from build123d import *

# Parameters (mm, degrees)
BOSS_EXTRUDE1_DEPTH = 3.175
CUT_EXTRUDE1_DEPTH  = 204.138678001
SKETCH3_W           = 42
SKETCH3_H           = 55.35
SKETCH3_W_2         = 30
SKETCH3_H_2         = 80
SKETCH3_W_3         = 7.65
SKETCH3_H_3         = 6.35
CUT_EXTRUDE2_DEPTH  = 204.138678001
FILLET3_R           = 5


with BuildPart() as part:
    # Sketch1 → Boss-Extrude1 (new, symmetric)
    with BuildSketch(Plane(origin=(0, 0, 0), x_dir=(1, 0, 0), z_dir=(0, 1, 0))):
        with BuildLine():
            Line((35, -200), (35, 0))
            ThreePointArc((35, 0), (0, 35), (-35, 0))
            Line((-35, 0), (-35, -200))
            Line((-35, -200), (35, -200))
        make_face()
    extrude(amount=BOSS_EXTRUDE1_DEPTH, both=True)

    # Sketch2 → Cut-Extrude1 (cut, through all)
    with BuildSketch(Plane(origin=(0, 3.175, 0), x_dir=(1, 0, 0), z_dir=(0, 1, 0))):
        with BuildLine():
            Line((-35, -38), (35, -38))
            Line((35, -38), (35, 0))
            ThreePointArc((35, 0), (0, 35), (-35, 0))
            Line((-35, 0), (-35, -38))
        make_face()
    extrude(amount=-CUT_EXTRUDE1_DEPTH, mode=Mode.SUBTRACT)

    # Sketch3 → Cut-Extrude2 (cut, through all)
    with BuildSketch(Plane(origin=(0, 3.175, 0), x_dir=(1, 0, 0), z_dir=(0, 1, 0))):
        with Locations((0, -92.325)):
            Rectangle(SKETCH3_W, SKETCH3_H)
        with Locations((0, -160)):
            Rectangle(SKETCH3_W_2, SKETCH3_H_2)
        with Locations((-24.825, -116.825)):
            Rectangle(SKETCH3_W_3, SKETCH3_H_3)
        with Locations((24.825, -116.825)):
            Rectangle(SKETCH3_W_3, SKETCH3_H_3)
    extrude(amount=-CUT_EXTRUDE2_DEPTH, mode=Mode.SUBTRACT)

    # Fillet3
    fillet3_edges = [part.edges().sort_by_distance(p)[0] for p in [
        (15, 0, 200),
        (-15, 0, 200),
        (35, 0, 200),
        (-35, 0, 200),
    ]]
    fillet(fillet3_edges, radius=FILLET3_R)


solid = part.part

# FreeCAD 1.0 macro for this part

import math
import FreeCAD as App
import Part
import Sketcher
from FreeCAD import Vector


def edges_at(feature, points):
    """Names of the edges that pass closest to the given points."""
    edges = feature.Shape.Edges
    near = lambda p: min(range(len(edges)), key=lambda i: edges[i].distToShape(Part.Vertex(*p))[0])
    return sorted({f"Edge{near(p) + 1}" for p in points})

doc = App.newDocument("Part")
params = doc.addObject("Spreadsheet::Sheet", "Params")
for row, (alias, value) in enumerate([
    ("sketch1_radius", "35 mm"),
    ("sketch1_height", "200 mm"),
    ("pad1_length", "6.35 mm"),
    ("sketch2_radius", "35 mm"),
    ("sketch2_height", "38 mm"),
    ("sketch3_width", "30 mm"),
    ("sketch3_width2", "42 mm"),
    ("sketch3_height", "49 mm"),
    ("sketch3_height2", "80 mm"),
    ("sketch3_width3", "7.65 mm"),
    ("fillet_radius", "5 mm"),
], start=1):
    params.set(f"A{row}", alias)
    params.set(f"B{row}", "=" + value)
    params.setAlias(f"B{row}", alias)

body = doc.addObject("PartDesign::Body", "Body")

sketch1 = body.newObject("Sketcher::SketchObject", "Sketch")
sketch1.AttachmentSupport = (doc.getObject("XZ_Plane"), [""])
sketch1.MapMode = "FlatFace"
sketch1.addGeometry(Part.LineSegment(Vector(35, 200, 0), Vector(35, 0, 0)), False)
sketch1.addGeometry(Part.ArcOfCircle(Part.Circle(Vector(0, 0, 0), Vector(0, 0, 1), 35), math.radians(180), math.radians(360)), False)
sketch1.addGeometry(Part.LineSegment(Vector(-35, 0, 0), Vector(-35, 200, 0)), False)
sketch1.addGeometry(Part.LineSegment(Vector(-35, 200, 0), Vector(35, 200, 0)), False)
sketch1.addConstraint(Sketcher.Constraint("Tangent", 0, 2, 1, 2))
sketch1.addConstraint(Sketcher.Constraint("Tangent", 1, 1, 2, 1))
sketch1.addConstraint(Sketcher.Constraint("Coincident", 2, 2, 3, 1))
sketch1.addConstraint(Sketcher.Constraint("Coincident", 3, 2, 0, 1))
sketch1.addConstraint(Sketcher.Constraint("Vertical", 0))
sketch1.addConstraint(Sketcher.Constraint("Vertical", 2))
sketch1.addConstraint(Sketcher.Constraint("Horizontal", 3))
sketch1.addConstraint(Sketcher.Constraint("Coincident", 1, 3, -1, 1))
sketch1.addConstraint(Sketcher.Constraint("Radius", 1, 35.0))
sketch1.addConstraint(Sketcher.Constraint("DistanceY", 0, 2, 0, 1, 200.0))
sketch1.setExpression("Constraints[8]", "Params.sketch1_radius")
sketch1.setExpression("Constraints[9]", "Params.sketch1_height")
pad1 = body.newObject("PartDesign::Pad", "Pad")
pad1.Profile = sketch1
pad1.setExpression("Length", "Params.pad1_length")
pad1.Midplane = True

sketch2 = body.newObject("Sketcher::SketchObject", "Sketch001")
sketch2.AttachmentSupport = (doc.getObject("XZ_Plane"), [""])
sketch2.MapMode = "FlatFace"
sketch2.AttachmentOffset = App.Placement(Vector(0, 0, -3.175), App.Rotation())
sketch2.addGeometry(Part.LineSegment(Vector(-35, 38, 0), Vector(35, 38, 0)), False)
sketch2.addGeometry(Part.LineSegment(Vector(35, 38, 0), Vector(35, 0, 0)), False)
sketch2.addGeometry(Part.ArcOfCircle(Part.Circle(Vector(0, 0, 0), Vector(0, 0, 1), 35), math.radians(180), math.radians(360)), False)
sketch2.addGeometry(Part.LineSegment(Vector(-35, 0, 0), Vector(-35, 38, 0)), False)
sketch2.addConstraint(Sketcher.Constraint("Coincident", 0, 2, 1, 1))
sketch2.addConstraint(Sketcher.Constraint("Tangent", 1, 2, 2, 2))
sketch2.addConstraint(Sketcher.Constraint("Tangent", 2, 1, 3, 1))
sketch2.addConstraint(Sketcher.Constraint("Coincident", 3, 2, 0, 1))
sketch2.addConstraint(Sketcher.Constraint("Horizontal", 0))
sketch2.addConstraint(Sketcher.Constraint("Vertical", 1))
sketch2.addConstraint(Sketcher.Constraint("Vertical", 3))
sketch2.addConstraint(Sketcher.Constraint("Coincident", 2, 3, -1, 1))
sketch2.addConstraint(Sketcher.Constraint("Radius", 2, 35.0))
sketch2.addConstraint(Sketcher.Constraint("DistanceY", 1, 2, 1, 1, 38.0))
sketch2.setExpression("Constraints[8]", "Params.sketch2_radius")
sketch2.setExpression("Constraints[9]", "Params.sketch2_height")
pocket1 = body.newObject("PartDesign::Pocket", "Pocket")
pocket1.Profile = sketch2
pocket1.Type = "ThroughAll"
pocket1.Reversed = True

sketch3 = body.newObject("Sketcher::SketchObject", "Sketch002")
sketch3.AttachmentSupport = (doc.getObject("XZ_Plane"), [""])
sketch3.MapMode = "FlatFace"
sketch3.AttachmentOffset = App.Placement(Vector(0, 0, -3.175), App.Rotation())
sketch3.addGeometry(Part.LineSegment(Vector(-21, 65, 0), Vector(-21, 114, 0)), False)
sketch3.addGeometry(Part.LineSegment(Vector(-21, 114, 0), Vector(-29, 114, 0)), False)
sketch3.addGeometry(Part.LineSegment(Vector(-29, 114, 0), Vector(-29, 120, 0)), False)
sketch3.addGeometry(Part.LineSegment(Vector(-29, 120, 0), Vector(-15, 120, 0)), False)
sketch3.addGeometry(Part.LineSegment(Vector(-15, 120, 0), Vector(-15, 200, 0)), False)
sketch3.addGeometry(Part.LineSegment(Vector(-15, 200, 0), Vector(15, 200, 0)), False)
sketch3.addGeometry(Part.LineSegment(Vector(15, 200, 0), Vector(15, 120, 0)), False)
sketch3.addGeometry(Part.LineSegment(Vector(15, 120, 0), Vector(29, 120, 0)), False)
sketch3.addGeometry(Part.LineSegment(Vector(29, 120, 0), Vector(29, 114, 0)), False)
sketch3.addGeometry(Part.LineSegment(Vector(29, 114, 0), Vector(21, 114, 0)), False)
sketch3.addGeometry(Part.LineSegment(Vector(21, 114, 0), Vector(21, 65, 0)), False)
sketch3.addGeometry(Part.LineSegment(Vector(21, 65, 0), Vector(-21, 65, 0)), False)
sketch3.addConstraint(Sketcher.Constraint("Coincident", 0, 2, 1, 1))
sketch3.addConstraint(Sketcher.Constraint("Coincident", 1, 2, 2, 1))
sketch3.addConstraint(Sketcher.Constraint("Coincident", 2, 2, 3, 1))
sketch3.addConstraint(Sketcher.Constraint("Coincident", 3, 2, 4, 1))
sketch3.addConstraint(Sketcher.Constraint("Coincident", 4, 2, 5, 1))
sketch3.addConstraint(Sketcher.Constraint("Coincident", 5, 2, 6, 1))
sketch3.addConstraint(Sketcher.Constraint("Coincident", 6, 2, 7, 1))
sketch3.addConstraint(Sketcher.Constraint("Coincident", 7, 2, 8, 1))
sketch3.addConstraint(Sketcher.Constraint("Coincident", 8, 2, 9, 1))
sketch3.addConstraint(Sketcher.Constraint("Coincident", 9, 2, 10, 1))
sketch3.addConstraint(Sketcher.Constraint("Coincident", 10, 2, 11, 1))
sketch3.addConstraint(Sketcher.Constraint("Coincident", 11, 2, 0, 1))
sketch3.addConstraint(Sketcher.Constraint("Vertical", 0))
sketch3.addConstraint(Sketcher.Constraint("Horizontal", 1))
sketch3.addConstraint(Sketcher.Constraint("Vertical", 2))
sketch3.addConstraint(Sketcher.Constraint("Horizontal", 3))
sketch3.addConstraint(Sketcher.Constraint("Vertical", 4))
sketch3.addConstraint(Sketcher.Constraint("Horizontal", 5))
sketch3.addConstraint(Sketcher.Constraint("Vertical", 6))
sketch3.addConstraint(Sketcher.Constraint("Horizontal", 7))
sketch3.addConstraint(Sketcher.Constraint("Vertical", 8))
sketch3.addConstraint(Sketcher.Constraint("Horizontal", 9))
sketch3.addConstraint(Sketcher.Constraint("Vertical", 10))
sketch3.addConstraint(Sketcher.Constraint("Horizontal", 11))
sketch3.addConstraint(Sketcher.Constraint("Symmetric", 3, 2, 6, 2, -2))
sketch3.addConstraint(Sketcher.Constraint("Symmetric", 1, 2, 8, 2, -2))
sketch3.addConstraint(Sketcher.Constraint("Equal", 1, 9))
sketch3.addConstraint(Sketcher.Constraint("DistanceX", 5, 1, 5, 2, 30.0))
sketch3.addConstraint(Sketcher.Constraint("DistanceX", 11, 2, 11, 1, 42.0))
sketch3.addConstraint(Sketcher.Constraint("DistanceY", 0, 1, 0, 2, 49.0))
sketch3.addConstraint(Sketcher.Constraint("DistanceY", 4, 1, 4, 2, 80.0))
sketch3.addConstraint(Sketcher.Constraint("DistanceY", -1, 1, 2, 2, 120.0))
sketch3.addConstraint(Sketcher.Constraint("DistanceX", 1, 2, 1, 1, 7.65))
sketch3.addConstraint(Sketcher.Constraint("DistanceY", 2, 1, 2, 2, 6.35))
sketch3.setExpression("Constraints[27]", "Params.sketch3_width")
sketch3.setExpression("Constraints[28]", "Params.sketch3_width2")
sketch3.setExpression("Constraints[29]", "Params.sketch3_height")
sketch3.setExpression("Constraints[30]", "Params.sketch3_height2")
sketch3.setExpression("Constraints[32]", "Params.sketch3_width3")
pocket2 = body.newObject("PartDesign::Pocket", "Pocket001")
pocket2.Profile = sketch3
pocket2.Type = "ThroughAll"
pocket2.Reversed = True
doc.recompute()

fillet = body.newObject("PartDesign::Fillet", "Fillet")
fillet.Base = (pocket2, edges_at(pocket2, [
    (15, 0, 200),
    (-15, 0, 200),
    (35, 0, 200),
    (-35, 0, 200),
]))
fillet.setExpression("Radius", "Params.fillet_radius")

doc.recompute()
